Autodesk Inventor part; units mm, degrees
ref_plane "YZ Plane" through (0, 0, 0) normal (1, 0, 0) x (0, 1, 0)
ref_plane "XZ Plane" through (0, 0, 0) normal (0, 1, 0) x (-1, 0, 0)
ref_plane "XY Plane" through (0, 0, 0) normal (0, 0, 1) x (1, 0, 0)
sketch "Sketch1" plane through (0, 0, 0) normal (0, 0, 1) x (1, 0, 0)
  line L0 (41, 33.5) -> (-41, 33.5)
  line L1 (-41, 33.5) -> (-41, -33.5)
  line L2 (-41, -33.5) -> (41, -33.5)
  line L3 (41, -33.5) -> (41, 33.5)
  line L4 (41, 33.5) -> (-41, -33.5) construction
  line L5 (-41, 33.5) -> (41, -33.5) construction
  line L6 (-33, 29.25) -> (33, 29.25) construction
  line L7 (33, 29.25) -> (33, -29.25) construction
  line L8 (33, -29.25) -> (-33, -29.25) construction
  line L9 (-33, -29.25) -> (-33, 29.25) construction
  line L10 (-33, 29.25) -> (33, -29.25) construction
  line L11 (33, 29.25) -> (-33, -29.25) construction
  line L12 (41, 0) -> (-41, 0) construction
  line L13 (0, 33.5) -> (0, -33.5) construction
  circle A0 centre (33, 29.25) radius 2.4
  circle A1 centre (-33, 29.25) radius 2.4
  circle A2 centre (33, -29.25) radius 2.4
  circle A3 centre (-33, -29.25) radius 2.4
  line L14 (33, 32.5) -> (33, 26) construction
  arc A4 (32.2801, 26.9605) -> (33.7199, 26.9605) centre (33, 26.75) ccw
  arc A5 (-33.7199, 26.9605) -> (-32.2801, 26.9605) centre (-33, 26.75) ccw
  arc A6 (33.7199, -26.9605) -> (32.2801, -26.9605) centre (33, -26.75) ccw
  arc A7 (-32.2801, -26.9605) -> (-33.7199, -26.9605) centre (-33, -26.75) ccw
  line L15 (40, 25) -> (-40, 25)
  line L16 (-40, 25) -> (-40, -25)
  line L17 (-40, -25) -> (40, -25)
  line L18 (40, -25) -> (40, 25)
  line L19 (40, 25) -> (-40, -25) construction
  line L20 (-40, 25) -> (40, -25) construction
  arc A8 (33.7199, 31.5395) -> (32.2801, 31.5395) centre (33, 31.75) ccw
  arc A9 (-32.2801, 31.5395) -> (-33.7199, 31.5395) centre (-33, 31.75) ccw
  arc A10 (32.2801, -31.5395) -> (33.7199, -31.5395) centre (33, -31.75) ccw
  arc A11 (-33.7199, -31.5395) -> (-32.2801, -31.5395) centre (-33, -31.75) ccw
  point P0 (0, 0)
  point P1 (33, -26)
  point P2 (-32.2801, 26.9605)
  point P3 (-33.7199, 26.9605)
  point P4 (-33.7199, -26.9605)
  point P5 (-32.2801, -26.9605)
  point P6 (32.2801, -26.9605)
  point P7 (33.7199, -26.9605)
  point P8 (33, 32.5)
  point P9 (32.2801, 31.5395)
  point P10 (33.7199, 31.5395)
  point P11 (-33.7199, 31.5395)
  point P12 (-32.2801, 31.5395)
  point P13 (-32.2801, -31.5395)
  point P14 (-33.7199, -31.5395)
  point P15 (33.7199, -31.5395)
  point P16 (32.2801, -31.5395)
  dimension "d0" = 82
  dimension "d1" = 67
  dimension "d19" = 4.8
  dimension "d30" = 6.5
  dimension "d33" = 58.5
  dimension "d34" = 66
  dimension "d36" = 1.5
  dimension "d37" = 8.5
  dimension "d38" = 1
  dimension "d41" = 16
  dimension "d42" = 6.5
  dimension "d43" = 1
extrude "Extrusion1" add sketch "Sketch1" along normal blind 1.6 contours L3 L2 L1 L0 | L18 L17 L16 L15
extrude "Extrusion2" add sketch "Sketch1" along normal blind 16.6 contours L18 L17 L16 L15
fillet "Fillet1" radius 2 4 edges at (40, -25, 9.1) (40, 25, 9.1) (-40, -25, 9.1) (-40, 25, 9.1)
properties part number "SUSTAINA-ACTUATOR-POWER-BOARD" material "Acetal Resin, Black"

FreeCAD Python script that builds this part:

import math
import FreeCAD as App
import Part
import Sketcher
from FreeCAD import Vector


def edges_at(feature, points):
    """Names of the edges that pass closest to the given points."""
    edges = feature.Shape.Edges
    near = lambda p: min(range(len(edges)), key=lambda i: edges[i].distToShape(Part.Vertex(*p))[0])
    return sorted({f"Edge{near(p) + 1}" for p in points})

doc = App.newDocument("Part")
body = doc.addObject("PartDesign::Body", "Body")

# Sketch on XY plane
sketch1 = body.newObject("Sketcher::SketchObject", "Sketch")
sketch1.AttachmentSupport = (doc.getObject("XY_Plane"), [""])
sketch1.MapMode = "FlatFace"
sketch1.addGeometry([
    Part.LineSegment(Vector(41, -33.5, 0), Vector(41, 33.5, 0)),  # 0
    Part.LineSegment(Vector(41, 33.5, 0), Vector(-41, 33.5, 0)),  # 1
    Part.LineSegment(Vector(-41, 33.5, 0), Vector(-41, -33.5, 0)),  # 2
    Part.LineSegment(Vector(-41, -33.5, 0), Vector(41, -33.5, 0)),  # 3
    Part.ArcOfCircle(Part.Circle(Vector(-33, -29.25, 0), Vector(0, 0, 1), 2.4), math.radians(-72.545003), math.radians(72.545003)),  # 4
    Part.ArcOfCircle(Part.Circle(Vector(-33, -31.75, 0), Vector(0, 0, 1), 0.750044), math.radians(163.700989), math.radians(376.299011)),  # 5
    Part.ArcOfCircle(Part.Circle(Vector(-33, -29.25, 0), Vector(0, 0, 1), 2.4), math.radians(107.454997), math.radians(252.545003)),  # 6
    Part.ArcOfCircle(Part.Circle(Vector(-33, -26.75, 0), Vector(0, 0, 1), 0.750044), math.radians(-16.299011), math.radians(196.299011)),  # 7
    Part.ArcOfCircle(Part.Circle(Vector(33, -29.25, 0), Vector(0, 0, 1), 2.4), math.radians(-72.545003), math.radians(72.545003)),  # 8
    Part.ArcOfCircle(Part.Circle(Vector(33, -31.75, 0), Vector(0, 0, 1), 0.750044), math.radians(163.700989), math.radians(376.299011)),  # 9
    Part.ArcOfCircle(Part.Circle(Vector(33, -29.25, 0), Vector(0, 0, 1), 2.4), math.radians(107.454997), math.radians(252.545003)),  # 10
    Part.ArcOfCircle(Part.Circle(Vector(33, -26.75, 0), Vector(0, 0, 1), 0.750044), math.radians(-16.299011), math.radians(196.299011)),  # 11
    Part.ArcOfCircle(Part.Circle(Vector(-33, 29.25, 0), Vector(0, 0, 1), 2.4), math.radians(-72.545003), math.radians(72.545003)),  # 12
    Part.ArcOfCircle(Part.Circle(Vector(-33, 26.75, 0), Vector(0, 0, 1), 0.750044), math.radians(163.700989), math.radians(376.299011)),  # 13
    Part.ArcOfCircle(Part.Circle(Vector(-33, 29.25, 0), Vector(0, 0, 1), 2.4), math.radians(107.454997), math.radians(252.545003)),  # 14
    Part.ArcOfCircle(Part.Circle(Vector(-33, 31.75, 0), Vector(0, 0, 1), 0.750044), math.radians(-16.299011), math.radians(196.299011)),  # 15
    Part.ArcOfCircle(Part.Circle(Vector(33, 29.25, 0), Vector(0, 0, 1), 2.4), math.radians(-72.545003), math.radians(72.545003)),  # 16
    Part.ArcOfCircle(Part.Circle(Vector(33, 26.75, 0), Vector(0, 0, 1), 0.750044), math.radians(163.700989), math.radians(376.299011)),  # 17
    Part.ArcOfCircle(Part.Circle(Vector(33, 29.25, 0), Vector(0, 0, 1), 2.4), math.radians(107.454997), math.radians(252.545003)),  # 18
    Part.ArcOfCircle(Part.Circle(Vector(33, 31.75, 0), Vector(0, 0, 1), 0.750044), math.radians(-16.299011), math.radians(196.299011)),  # 19
], False)
sketch1.addConstraint([
    Sketcher.Constraint("Coincident", 0, 2, 1, 1),
    Sketcher.Constraint("Coincident", 1, 2, 2, 1),
    Sketcher.Constraint("Coincident", 2, 2, 3, 1),
    Sketcher.Constraint("Coincident", 3, 2, 0, 1),
    Sketcher.Constraint("Coincident", 4, 1, 5, 2),
    Sketcher.Constraint("Coincident", 5, 1, 6, 2),
    Sketcher.Constraint("Coincident", 6, 1, 7, 2),
    Sketcher.Constraint("Coincident", 7, 1, 4, 2),
    Sketcher.Constraint("Coincident", 8, 1, 9, 2),
    Sketcher.Constraint("Coincident", 9, 1, 10, 2),
    Sketcher.Constraint("Coincident", 10, 1, 11, 2),
    Sketcher.Constraint("Coincident", 11, 1, 8, 2),
    Sketcher.Constraint("Coincident", 12, 1, 13, 2),
    Sketcher.Constraint("Coincident", 13, 1, 14, 2),
    Sketcher.Constraint("Coincident", 14, 1, 15, 2),
    Sketcher.Constraint("Coincident", 15, 1, 12, 2),
    Sketcher.Constraint("Coincident", 16, 1, 17, 2),
    Sketcher.Constraint("Coincident", 17, 1, 18, 2),
    Sketcher.Constraint("Coincident", 18, 1, 19, 2),
    Sketcher.Constraint("Coincident", 19, 1, 16, 2),
    Sketcher.Constraint("Vertical", 0),
    Sketcher.Constraint("Horizontal", 1),
    Sketcher.Constraint("Vertical", 2),
    Sketcher.Constraint("Horizontal", 3),
    Sketcher.Constraint("Coincident", 6, 3, 4, 3),
    Sketcher.Constraint("Coincident", 10, 3, 8, 3),
    Sketcher.Constraint("Coincident", 14, 3, 12, 3),
    Sketcher.Constraint("Coincident", 18, 3, 16, 3),
    Sketcher.Constraint("Equal", 4, 6),
    Sketcher.Constraint("Equal", 5, 7),
    Sketcher.Constraint("Equal", 6, 8),
    Sketcher.Constraint("Equal", 7, 9),
    Sketcher.Constraint("Equal", 8, 10),
    Sketcher.Constraint("Equal", 9, 11),
    Sketcher.Constraint("Equal", 10, 12),
    Sketcher.Constraint("Equal", 11, 13),
    Sketcher.Constraint("Equal", 12, 14),
    Sketcher.Constraint("Equal", 13, 15),
    Sketcher.Constraint("Equal", 14, 16),
    Sketcher.Constraint("Equal", 15, 17),
    Sketcher.Constraint("Equal", 16, 18),
    Sketcher.Constraint("Equal", 17, 19),
    Sketcher.Constraint("Symmetric", 8, 3, 12, 3, -1, 1),
    Sketcher.Constraint("Symmetric", 11, 3, 13, 3, -1, 1),
    Sketcher.Constraint("Symmetric", 9, 3, 15, 3, -1, 1),
    Sketcher.Constraint("Symmetric", 4, 3, 16, 3, -1, 1),
    Sketcher.Constraint("Symmetric", 7, 3, 17, 3, -1, 1),
    Sketcher.Constraint("Symmetric", 5, 3, 19, 3, -1, 1),
    Sketcher.Constraint("Symmetric", 0, 2, 2, 2, -1, 1),
    Sketcher.Constraint("Symmetric", 4, 3, 8, 3, -2),
    Sketcher.Constraint("Symmetric", 5, 3, 9, 3, -2),
    Sketcher.Constraint("Symmetric", 7, 3, 11, 3, -2),
    Sketcher.Constraint("Horizontal", 4, 1, 5, 1),
    Sketcher.Constraint("Horizontal", 6, 1, 7, 1),
    Sketcher.Constraint("Vertical", 5, 1, 6, 1),
    Sketcher.Constraint("Radius", 4, 2.4),
    Sketcher.Constraint("DistanceX", 1, 2, 1, 1, 82.0),
    Sketcher.Constraint("DistanceY", 0, 1, 0, 2, 67.0),
    Sketcher.Constraint("Radius", 5, 0.75),
    Sketcher.Constraint("DistanceX", 4, 3, 8, 3, 66.0),
    Sketcher.Constraint("DistanceY", 4, 3, 12, 3, 58.5),
    Sketcher.Constraint("DistanceY", 5, 3, 7, 3, 5.0),
])
pad1 = body.newObject("PartDesign::Pad", "Pad")
pad1.Profile = sketch1
pad1.Length = 1.6

# Sketch on XY plane
sketch2 = body.newObject("Sketcher::SketchObject", "Sketch001")
sketch2.AttachmentSupport = (doc.getObject("XY_Plane"), [""])
sketch2.MapMode = "FlatFace"
sketch2.addGeometry([
    Part.LineSegment(Vector(40, -25, 0), Vector(40, 25, 0)),
    Part.LineSegment(Vector(40, 25, 0), Vector(-40, 25, 0)),
    Part.LineSegment(Vector(-40, 25, 0), Vector(-40, -25, 0)),
    Part.LineSegment(Vector(-40, -25, 0), Vector(40, -25, 0)),
], False)
sketch2.addConstraint([
    Sketcher.Constraint("Coincident", 0, 2, 1, 1),
    Sketcher.Constraint("Coincident", 1, 2, 2, 1),
    Sketcher.Constraint("Coincident", 2, 2, 3, 1),
    Sketcher.Constraint("Coincident", 3, 2, 0, 1),
    Sketcher.Constraint("Vertical", 0),
    Sketcher.Constraint("Horizontal", 1),
    Sketcher.Constraint("Vertical", 2),
    Sketcher.Constraint("Horizontal", 3),
    Sketcher.Constraint("Symmetric", 0, 2, 2, 2, -1, 1),
    Sketcher.Constraint("DistanceX", 1, 2, 1, 1, 80.0),
    Sketcher.Constraint("DistanceY", 0, 1, 0, 2, 50.0),
])
pad2 = body.newObject("PartDesign::Pad", "Pad001")
pad2.Profile = sketch2
pad2.Length = 16.6
doc.recompute()

fillet = body.newObject("PartDesign::Fillet", "Fillet")
fillet.Base = (pad2, edges_at(pad2, [
    (40, -25, 9.1),
    (40, 25, 9.1),
    (-40, -25, 9.1),
    (-40, 25, 9.1),
]))
fillet.Radius = 2

doc.recompute()
